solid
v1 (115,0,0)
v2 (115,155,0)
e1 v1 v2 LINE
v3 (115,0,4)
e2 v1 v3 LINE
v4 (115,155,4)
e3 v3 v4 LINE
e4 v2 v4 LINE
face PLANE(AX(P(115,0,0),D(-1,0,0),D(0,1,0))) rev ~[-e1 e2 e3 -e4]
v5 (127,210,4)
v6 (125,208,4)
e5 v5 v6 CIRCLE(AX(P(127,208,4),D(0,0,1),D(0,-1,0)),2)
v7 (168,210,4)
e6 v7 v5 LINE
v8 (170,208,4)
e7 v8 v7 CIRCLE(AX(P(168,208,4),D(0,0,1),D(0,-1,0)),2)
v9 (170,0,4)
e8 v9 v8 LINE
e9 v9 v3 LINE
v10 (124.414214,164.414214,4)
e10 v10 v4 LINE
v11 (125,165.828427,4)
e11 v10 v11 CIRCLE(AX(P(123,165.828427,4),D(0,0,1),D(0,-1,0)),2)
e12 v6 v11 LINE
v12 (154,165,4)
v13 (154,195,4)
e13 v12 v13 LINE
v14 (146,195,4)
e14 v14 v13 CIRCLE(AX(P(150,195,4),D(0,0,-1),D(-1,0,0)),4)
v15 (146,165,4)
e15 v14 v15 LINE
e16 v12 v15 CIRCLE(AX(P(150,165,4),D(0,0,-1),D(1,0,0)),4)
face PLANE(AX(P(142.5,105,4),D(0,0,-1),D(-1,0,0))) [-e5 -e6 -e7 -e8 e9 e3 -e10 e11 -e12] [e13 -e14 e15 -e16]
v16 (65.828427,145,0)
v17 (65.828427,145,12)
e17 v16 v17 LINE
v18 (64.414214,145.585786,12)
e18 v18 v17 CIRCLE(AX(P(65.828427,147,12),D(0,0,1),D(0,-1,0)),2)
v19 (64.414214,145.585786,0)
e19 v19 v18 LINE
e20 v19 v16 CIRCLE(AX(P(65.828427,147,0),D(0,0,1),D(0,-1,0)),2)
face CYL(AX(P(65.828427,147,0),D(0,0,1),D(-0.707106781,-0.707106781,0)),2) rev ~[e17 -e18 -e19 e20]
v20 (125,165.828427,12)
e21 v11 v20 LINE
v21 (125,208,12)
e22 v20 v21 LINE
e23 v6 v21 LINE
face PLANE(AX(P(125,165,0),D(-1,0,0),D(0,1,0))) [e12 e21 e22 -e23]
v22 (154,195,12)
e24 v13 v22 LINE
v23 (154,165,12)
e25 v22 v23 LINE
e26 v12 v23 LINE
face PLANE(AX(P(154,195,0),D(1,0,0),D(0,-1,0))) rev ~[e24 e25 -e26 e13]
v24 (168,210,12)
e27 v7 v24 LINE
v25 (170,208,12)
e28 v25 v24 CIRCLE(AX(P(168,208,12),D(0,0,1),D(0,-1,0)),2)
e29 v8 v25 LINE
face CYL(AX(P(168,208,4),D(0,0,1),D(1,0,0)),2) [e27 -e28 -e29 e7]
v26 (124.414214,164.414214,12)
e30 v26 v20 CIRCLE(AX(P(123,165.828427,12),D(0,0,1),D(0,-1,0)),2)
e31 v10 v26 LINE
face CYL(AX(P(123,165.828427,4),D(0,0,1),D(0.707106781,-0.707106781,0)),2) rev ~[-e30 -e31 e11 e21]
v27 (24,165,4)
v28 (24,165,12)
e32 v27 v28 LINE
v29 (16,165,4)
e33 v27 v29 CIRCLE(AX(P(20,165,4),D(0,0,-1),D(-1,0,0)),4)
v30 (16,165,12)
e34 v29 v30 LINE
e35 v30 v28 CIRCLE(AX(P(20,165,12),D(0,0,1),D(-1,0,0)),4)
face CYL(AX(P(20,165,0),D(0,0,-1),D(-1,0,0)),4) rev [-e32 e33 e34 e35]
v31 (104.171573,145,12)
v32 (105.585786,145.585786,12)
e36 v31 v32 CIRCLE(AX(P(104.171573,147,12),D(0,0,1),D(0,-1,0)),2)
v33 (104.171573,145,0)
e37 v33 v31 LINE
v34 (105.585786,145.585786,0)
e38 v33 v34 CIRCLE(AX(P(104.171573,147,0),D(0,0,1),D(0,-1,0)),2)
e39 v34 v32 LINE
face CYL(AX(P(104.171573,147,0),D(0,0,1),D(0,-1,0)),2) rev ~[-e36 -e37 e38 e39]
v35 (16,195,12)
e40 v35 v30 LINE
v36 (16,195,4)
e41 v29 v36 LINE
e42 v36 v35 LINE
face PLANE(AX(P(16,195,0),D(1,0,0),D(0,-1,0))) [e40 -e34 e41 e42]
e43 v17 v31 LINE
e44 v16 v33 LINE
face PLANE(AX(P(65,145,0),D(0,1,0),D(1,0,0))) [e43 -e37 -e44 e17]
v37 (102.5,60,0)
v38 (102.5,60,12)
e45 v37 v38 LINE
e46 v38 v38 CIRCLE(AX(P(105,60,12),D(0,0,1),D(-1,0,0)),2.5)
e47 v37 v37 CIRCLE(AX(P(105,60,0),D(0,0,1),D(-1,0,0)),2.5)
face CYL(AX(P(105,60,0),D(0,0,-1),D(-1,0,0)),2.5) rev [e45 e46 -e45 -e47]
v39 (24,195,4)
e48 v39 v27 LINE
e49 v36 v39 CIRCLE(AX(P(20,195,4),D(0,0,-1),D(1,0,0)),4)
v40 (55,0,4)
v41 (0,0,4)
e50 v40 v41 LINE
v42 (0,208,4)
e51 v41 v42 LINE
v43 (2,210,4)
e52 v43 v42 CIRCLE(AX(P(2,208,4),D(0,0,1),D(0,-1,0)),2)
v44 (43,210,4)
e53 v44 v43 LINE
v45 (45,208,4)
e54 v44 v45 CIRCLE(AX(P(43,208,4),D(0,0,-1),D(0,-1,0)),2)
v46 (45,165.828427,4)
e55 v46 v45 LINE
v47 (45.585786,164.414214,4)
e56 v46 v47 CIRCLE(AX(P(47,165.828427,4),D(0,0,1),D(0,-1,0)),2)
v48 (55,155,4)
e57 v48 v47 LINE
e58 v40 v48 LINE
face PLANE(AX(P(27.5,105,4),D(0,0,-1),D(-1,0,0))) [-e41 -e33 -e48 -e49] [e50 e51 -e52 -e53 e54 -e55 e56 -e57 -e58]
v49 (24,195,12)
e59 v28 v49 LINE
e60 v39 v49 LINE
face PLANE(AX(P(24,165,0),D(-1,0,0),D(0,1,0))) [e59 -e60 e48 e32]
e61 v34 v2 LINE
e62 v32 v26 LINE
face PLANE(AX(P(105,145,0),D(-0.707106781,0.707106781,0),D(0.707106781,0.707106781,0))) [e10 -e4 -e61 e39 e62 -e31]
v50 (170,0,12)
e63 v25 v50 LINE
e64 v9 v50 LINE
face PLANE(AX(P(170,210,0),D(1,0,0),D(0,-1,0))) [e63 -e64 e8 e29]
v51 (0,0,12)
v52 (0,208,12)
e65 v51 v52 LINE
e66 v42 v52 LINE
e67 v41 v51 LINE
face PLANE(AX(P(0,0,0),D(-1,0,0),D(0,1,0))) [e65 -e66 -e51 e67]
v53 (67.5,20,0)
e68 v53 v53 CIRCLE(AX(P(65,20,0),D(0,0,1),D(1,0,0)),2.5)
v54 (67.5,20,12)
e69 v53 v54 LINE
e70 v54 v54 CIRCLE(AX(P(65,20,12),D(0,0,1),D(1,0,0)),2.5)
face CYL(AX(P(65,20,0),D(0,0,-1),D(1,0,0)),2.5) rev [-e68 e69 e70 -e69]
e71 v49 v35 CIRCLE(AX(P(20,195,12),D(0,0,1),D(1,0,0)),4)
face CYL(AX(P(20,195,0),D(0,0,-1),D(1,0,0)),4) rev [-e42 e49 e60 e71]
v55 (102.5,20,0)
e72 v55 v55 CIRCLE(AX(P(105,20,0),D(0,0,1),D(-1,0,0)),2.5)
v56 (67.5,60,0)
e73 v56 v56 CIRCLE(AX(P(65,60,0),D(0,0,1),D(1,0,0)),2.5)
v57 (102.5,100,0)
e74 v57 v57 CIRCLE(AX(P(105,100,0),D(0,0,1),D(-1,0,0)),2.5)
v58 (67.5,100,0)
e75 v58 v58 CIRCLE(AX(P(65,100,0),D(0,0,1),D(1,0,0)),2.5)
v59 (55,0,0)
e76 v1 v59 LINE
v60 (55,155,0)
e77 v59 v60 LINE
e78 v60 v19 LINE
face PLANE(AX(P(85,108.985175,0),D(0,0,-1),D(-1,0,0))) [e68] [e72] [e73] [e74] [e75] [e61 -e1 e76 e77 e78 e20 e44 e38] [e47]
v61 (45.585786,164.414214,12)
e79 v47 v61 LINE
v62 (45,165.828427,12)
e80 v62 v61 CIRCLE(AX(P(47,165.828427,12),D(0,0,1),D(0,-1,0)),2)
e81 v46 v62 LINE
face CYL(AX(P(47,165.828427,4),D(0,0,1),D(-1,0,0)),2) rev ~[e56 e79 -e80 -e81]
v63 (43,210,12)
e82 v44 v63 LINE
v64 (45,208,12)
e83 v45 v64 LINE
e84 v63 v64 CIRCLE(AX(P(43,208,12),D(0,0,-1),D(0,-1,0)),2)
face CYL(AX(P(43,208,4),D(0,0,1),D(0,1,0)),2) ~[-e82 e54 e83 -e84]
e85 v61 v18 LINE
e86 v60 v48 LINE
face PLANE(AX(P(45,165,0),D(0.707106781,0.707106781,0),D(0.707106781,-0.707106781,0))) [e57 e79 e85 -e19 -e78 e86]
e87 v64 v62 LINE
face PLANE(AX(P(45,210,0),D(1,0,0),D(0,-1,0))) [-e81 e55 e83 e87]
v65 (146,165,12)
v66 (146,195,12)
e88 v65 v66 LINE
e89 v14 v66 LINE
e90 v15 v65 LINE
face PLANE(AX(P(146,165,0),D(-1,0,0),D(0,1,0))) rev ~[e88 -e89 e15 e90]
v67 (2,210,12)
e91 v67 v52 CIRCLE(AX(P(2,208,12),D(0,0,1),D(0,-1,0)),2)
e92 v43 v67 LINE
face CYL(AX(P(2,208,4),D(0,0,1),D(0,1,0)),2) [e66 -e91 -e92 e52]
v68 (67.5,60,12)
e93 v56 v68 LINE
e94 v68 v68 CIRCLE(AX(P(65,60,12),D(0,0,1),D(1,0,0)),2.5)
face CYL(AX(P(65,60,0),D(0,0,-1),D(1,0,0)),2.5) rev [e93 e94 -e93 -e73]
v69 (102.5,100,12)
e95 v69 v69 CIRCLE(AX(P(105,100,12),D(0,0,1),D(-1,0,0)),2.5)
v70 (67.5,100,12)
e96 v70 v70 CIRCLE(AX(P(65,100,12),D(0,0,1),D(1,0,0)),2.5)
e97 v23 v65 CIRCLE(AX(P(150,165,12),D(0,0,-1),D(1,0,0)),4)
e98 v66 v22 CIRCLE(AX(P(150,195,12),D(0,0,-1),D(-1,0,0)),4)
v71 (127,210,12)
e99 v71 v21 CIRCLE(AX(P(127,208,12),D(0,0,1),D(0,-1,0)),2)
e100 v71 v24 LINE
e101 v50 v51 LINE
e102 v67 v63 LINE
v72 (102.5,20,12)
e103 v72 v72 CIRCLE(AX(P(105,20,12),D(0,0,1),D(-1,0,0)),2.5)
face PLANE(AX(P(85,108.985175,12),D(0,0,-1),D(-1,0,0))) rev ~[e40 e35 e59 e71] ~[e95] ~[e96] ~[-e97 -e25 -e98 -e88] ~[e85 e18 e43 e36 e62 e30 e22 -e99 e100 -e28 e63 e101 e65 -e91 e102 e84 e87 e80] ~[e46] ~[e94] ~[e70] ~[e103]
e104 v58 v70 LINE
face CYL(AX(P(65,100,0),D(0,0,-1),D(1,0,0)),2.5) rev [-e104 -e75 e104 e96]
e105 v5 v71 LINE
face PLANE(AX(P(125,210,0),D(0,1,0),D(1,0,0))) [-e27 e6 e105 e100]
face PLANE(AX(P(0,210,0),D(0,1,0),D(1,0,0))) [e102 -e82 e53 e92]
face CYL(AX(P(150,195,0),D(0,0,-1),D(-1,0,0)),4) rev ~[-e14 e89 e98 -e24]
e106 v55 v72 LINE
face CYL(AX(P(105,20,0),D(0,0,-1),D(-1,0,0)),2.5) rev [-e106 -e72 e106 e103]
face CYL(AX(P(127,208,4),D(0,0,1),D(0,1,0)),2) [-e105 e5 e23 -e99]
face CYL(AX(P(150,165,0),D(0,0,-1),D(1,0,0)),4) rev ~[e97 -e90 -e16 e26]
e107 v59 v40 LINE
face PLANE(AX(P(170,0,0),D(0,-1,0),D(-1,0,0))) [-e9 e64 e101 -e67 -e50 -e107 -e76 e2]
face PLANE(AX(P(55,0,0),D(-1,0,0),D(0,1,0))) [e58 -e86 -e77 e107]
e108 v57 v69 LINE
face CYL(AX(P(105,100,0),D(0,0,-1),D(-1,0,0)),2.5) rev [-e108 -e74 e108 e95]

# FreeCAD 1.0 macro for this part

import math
import FreeCAD as App
import Part
import Sketcher

V = App.Vector
Q = App.Units.Quantity


def edges_at(feature, points):
    """Names of the edges that pass closest to the given points."""
    edges = feature.Shape.Edges
    near = lambda p: min(range(len(edges)), key=lambda i: edges[i].distToShape(Part.Vertex(*p))[0])
    return sorted({f"Edge{near(p) + 1}" for p in points})


def add_polygon(sketch, points):
    """Adds a closed chain of lines whose ends are joined by coincident constraints."""
    first, n = sketch.GeometryCount, len(points)
    for a, b in zip(points, points[1:] + points[:1]):
        sketch.addGeometry(Part.LineSegment(App.Vector(*a, 0), App.Vector(*b, 0)), False)
    for i in range(n):
        sketch.addConstraint(Sketcher.Constraint("Coincident", first + i, 2, first + (i + 1) % n, 1))

doc = App.newDocument("Part")
body = doc.addObject("PartDesign::Body", "Body")

# Sketch on XY plane
sketch1 = body.newObject("Sketcher::SketchObject", "Sketch")
sketch1.AttachmentSupport = (doc.getObject("XY_Plane"), [""])
sketch1.MapMode = "FlatFace"
add_polygon(sketch1, [(45, 210), (0, 210), (0, 0), (170, 0), (170, 210), (125, 210), (125, 165), (105, 145), (65, 145), (45, 165)])  # lines 0-9
sketch1.addGeometry(Part.Circle(V(105, 20, 0), V(0, 0, 1), 2.5), False)  # 10
sketch1.addGeometry(Part.Circle(V(105, 60, 0), V(0, 0, 1), 2.5), False)  # 11
sketch1.addGeometry(Part.Circle(V(105, 100, 0), V(0, 0, 1), 2.5), False)  # 12
sketch1.addGeometry(Part.Circle(V(65, 20, 0), V(0, 0, 1), 2.5), False)  # 13
sketch1.addGeometry(Part.Circle(V(65, 60, 0), V(0, 0, 1), 2.5), False)  # 14
sketch1.addGeometry(Part.Circle(V(65, 100, 0), V(0, 0, 1), 2.5), False)  # 15
sketch1.addGeometry(Part.LineSegment(V(154, 195, 0), V(154, 165, 0)), False)  # 16
sketch1.addGeometry(Part.ArcOfCircle(Part.Circle(V(150, 165, 0), V(0, 0, 1), 4), math.radians(180), math.radians(360)), False)  # 17
sketch1.addGeometry(Part.LineSegment(V(146, 165, 0), V(146, 195, 0)), False)  # 18
sketch1.addGeometry(Part.ArcOfCircle(Part.Circle(V(150, 195, 0), V(0, 0, 1), 4), math.radians(0), math.radians(180)), False)  # 19
sketch1.addGeometry(Part.ArcOfCircle(Part.Circle(V(20, 195, 0), V(0, 0, 1), 4), math.radians(0), math.radians(180)), False)  # 20
sketch1.addGeometry(Part.LineSegment(V(24, 195, 0), V(24, 165, 0)), False)  # 21
sketch1.addGeometry(Part.ArcOfCircle(Part.Circle(V(20, 165, 0), V(0, 0, 1), 4), math.radians(180), math.radians(360)), False)  # 22
sketch1.addGeometry(Part.LineSegment(V(16, 165, 0), V(16, 195, 0)), False)  # 23
sketch1.addConstraint([
    Sketcher.Constraint("Tangent", 16, 2, 17, 2),
    Sketcher.Constraint("Tangent", 17, 1, 18, 1),
    Sketcher.Constraint("Tangent", 18, 2, 19, 2),
    Sketcher.Constraint("Tangent", 19, 1, 16, 1),
    Sketcher.Constraint("Tangent", 20, 1, 21, 1),
    Sketcher.Constraint("Tangent", 21, 2, 22, 2),
    Sketcher.Constraint("Tangent", 22, 1, 23, 1),
    Sketcher.Constraint("Tangent", 23, 2, 20, 2),
    Sketcher.Constraint("Horizontal", 0),
    Sketcher.Constraint("Vertical", 1),
    Sketcher.Constraint("Horizontal", 2),
    Sketcher.Constraint("Vertical", 3),
    Sketcher.Constraint("Horizontal", 4),
    Sketcher.Constraint("Vertical", 5),
    Sketcher.Constraint("Horizontal", 7),
    Sketcher.Constraint("Vertical", 9),
    Sketcher.Constraint("Vertical", 16),
    Sketcher.Constraint("Vertical", 18),
    Sketcher.Constraint("Vertical", 21),
    Sketcher.Constraint("Vertical", 23),
    Sketcher.Constraint("Coincident", 1, 2, -1, 1),
    Sketcher.Constraint("Equal", 10, 11),
    Sketcher.Constraint("Equal", 11, 12),
    Sketcher.Constraint("Equal", 12, 13),
    Sketcher.Constraint("Equal", 13, 14),
    Sketcher.Constraint("Equal", 14, 15),
    Sketcher.Constraint("Equal", 19, 20),
    Sketcher.Constraint("Perpendicular", 6, 8),
    Sketcher.Constraint("Horizontal", 10, 3, 13, 3),
    Sketcher.Constraint("Horizontal", 11, 3, 14, 3),
    Sketcher.Constraint("Horizontal", 12, 3, 15, 3),
    Sketcher.Constraint("Horizontal", 19, 3, 20, 3),
    Sketcher.Constraint("Horizontal", 17, 3, 22, 3),
    Sketcher.Constraint("Horizontal", 0, 2, 3, 2),
    Sketcher.Constraint("Horizontal", 22, 3, 5, 2),
    Sketcher.Constraint("Horizontal", 5, 2, 8, 2),
    Sketcher.Constraint("Vertical", 10, 3, 11, 3),
    Sketcher.Constraint("Vertical", 11, 3, 12, 3),
    Sketcher.Constraint("Vertical", 13, 3, 14, 3),
    Sketcher.Constraint("Vertical", 14, 3, 15, 3),
    Sketcher.Constraint("Vertical", 12, 3, 6, 2),
    Sketcher.Constraint("Vertical", 15, 3, 7, 2),
    Sketcher.Constraint("Equal", 0, 4),
    Sketcher.Constraint("Equal", 4, 5),
    Sketcher.Constraint("Equal", 6, 8),
    Sketcher.Constraint("Diameter", 10, Q("5 mm")),
    Sketcher.Constraint("Radius", 17, Q("4 mm")),
    Sketcher.Constraint("DistanceX", 0, 2, 0, 1, Q("45 mm")),
    Sketcher.Constraint("DistanceX", 2, 1, 2, 2, Q("170 mm")),
    Sketcher.Constraint("DistanceX", 7, 2, 7, 1, Q("40 mm")),
    Sketcher.Constraint("DistanceY", 1, 2, 1, 1, Q("210 mm")),
    Sketcher.Constraint("DistanceY", 16, 2, 16, 1, Q("30 mm")),
    Sketcher.Constraint("DistanceY", -1, 1, 10, 3, Q("20 mm")),
    Sketcher.Constraint("DistanceY", -1, 1, 11, 3, Q("60 mm")),
    Sketcher.Constraint("DistanceY", -1, 1, 12, 3, Q("100 mm")),
    Sketcher.Constraint("DistanceX", -1, 1, 17, 3, Q("150 mm")),
    Sketcher.Constraint("DistanceX", -1, 1, 20, 3, Q("20 mm")),
])
pad1 = body.newObject("PartDesign::Pad", "Pad")
pad1.Profile = sketch1
pad1.Length = 12

# Sketch on XY plane
sketch2 = body.newObject("Sketcher::SketchObject", "Sketch001")
sketch2.AttachmentSupport = (doc.getObject("XY_Plane"), [""])
sketch2.MapMode = "FlatFace"
add_polygon(sketch2, [(55, 210), (55, 0), (0, 0), (0, 210)])  # lines 0-3
add_polygon(sketch2, [(170, 210), (170, 0), (115, 0), (115, 210)])  # lines 4-7
sketch2.addConstraint([
    Sketcher.Constraint("Vertical", 0),
    Sketcher.Constraint("Horizontal", 1),
    Sketcher.Constraint("Vertical", 2),
    Sketcher.Constraint("Horizontal", 3),
    Sketcher.Constraint("Vertical", 4),
    Sketcher.Constraint("Horizontal", 5),
    Sketcher.Constraint("Vertical", 6),
    Sketcher.Constraint("Horizontal", 7),
    Sketcher.Constraint("Coincident", 1, 2, -1, 1),
    Sketcher.Constraint("PointOnObject", 4, 2, -1),
    Sketcher.Constraint("Horizontal", 3, 2, 6, 2),
    Sketcher.Constraint("Equal", 3, 5),
    Sketcher.Constraint("DistanceX", 1, 2, 1, 1, Q("55 mm")),
    Sketcher.Constraint("DistanceY", 0, 2, 0, 1, Q("210 mm")),
    Sketcher.Constraint("DistanceX", -1, 1, 4, 2, Q("170 mm")),
])
pocket1 = body.newObject("PartDesign::Pocket", "Pocket")
pocket1.Profile = sketch2
pocket1.Length = 4
pocket1.Reversed = True
doc.recompute()

fillet = body.newObject("PartDesign::Fillet", "Fillet")
fillet.Base = (pocket1, edges_at(pocket1, [
    (0, 210, 8),
    (45, 210, 8),
    (45, 165, 8),
    (65, 145, 6),
    (105, 145, 6),
    (125, 165, 8),
    (125, 210, 8),
    (170, 210, 8),
]))
fillet.Radius = 2

doc.recompute()
